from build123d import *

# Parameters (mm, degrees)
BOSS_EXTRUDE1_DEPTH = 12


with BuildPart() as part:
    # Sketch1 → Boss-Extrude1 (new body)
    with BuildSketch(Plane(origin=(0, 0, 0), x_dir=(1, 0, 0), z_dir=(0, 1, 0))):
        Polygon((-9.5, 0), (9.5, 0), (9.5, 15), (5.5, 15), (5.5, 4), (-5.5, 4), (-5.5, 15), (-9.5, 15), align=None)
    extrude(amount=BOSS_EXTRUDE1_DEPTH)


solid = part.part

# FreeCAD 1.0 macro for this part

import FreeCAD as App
import Part
import Sketcher
Q = App.Units.Quantity

doc = App.newDocument("Part")
body = doc.addObject("PartDesign::Body", "Body")

sketch1 = body.newObject("Sketcher::SketchObject", "Sketch")
sketch1.AttachmentSupport = (doc.getObject("XZ_Plane"), [""])
sketch1.MapMode = "FlatFace"
sketch1.addGeometry([
    Part.LineSegment(App.Vector(-9.5, 0, 0), App.Vector(9.5, 0, 0)),
    Part.LineSegment(App.Vector(9.5, 0, 0), App.Vector(9.5, -15, 0)),
    Part.LineSegment(App.Vector(9.5, -15, 0), App.Vector(5.5, -15, 0)),
    Part.LineSegment(App.Vector(5.5, -15, 0), App.Vector(5.5, -4, 0)),
    Part.LineSegment(App.Vector(5.5, -4, 0), App.Vector(-5.5, -4, 0)),
    Part.LineSegment(App.Vector(-5.5, -4, 0), App.Vector(-5.5, -15, 0)),
    Part.LineSegment(App.Vector(-5.5, -15, 0), App.Vector(-9.5, -15, 0)),
    Part.LineSegment(App.Vector(-9.5, -15, 0), App.Vector(-9.5, 0, 0)),
], False)
sketch1.addConstraint([
    Sketcher.Constraint("Coincident", 0, 2, 1, 1),
    Sketcher.Constraint("Coincident", 1, 2, 2, 1),
    Sketcher.Constraint("Coincident", 2, 2, 3, 1),
    Sketcher.Constraint("Coincident", 3, 2, 4, 1),
    Sketcher.Constraint("Coincident", 4, 2, 5, 1),
    Sketcher.Constraint("Coincident", 5, 2, 6, 1),
    Sketcher.Constraint("Coincident", 6, 2, 7, 1),
    Sketcher.Constraint("Coincident", 7, 2, 0, 1),
    Sketcher.Constraint("Horizontal", 0),
    Sketcher.Constraint("Vertical", 1),
    Sketcher.Constraint("Horizontal", 2),
    Sketcher.Constraint("Vertical", 3),
    Sketcher.Constraint("Horizontal", 4),
    Sketcher.Constraint("Vertical", 5),
    Sketcher.Constraint("Horizontal", 6),
    Sketcher.Constraint("Vertical", 7),
    Sketcher.Constraint("Symmetric", 0, 2, 7, 2, -1, 1),
    Sketcher.Constraint("Symmetric", 2, 2, 5, 2, -2),
    Sketcher.Constraint("Equal", 4, 3),
    Sketcher.Constraint("DistanceX", 0, 1, 0, 2, Q("19 mm")),
    Sketcher.Constraint("DistanceX", 2, 2, 2, 1, Q("4 mm")),
    Sketcher.Constraint("DistanceY", 1, 2, 1, 1, Q("15 mm")),
])
pad1 = body.newObject("PartDesign::Pad", "Pad")
pad1.Profile = sketch1
pad1.Length = 12
pad1.Reversed = True

doc.recompute()
